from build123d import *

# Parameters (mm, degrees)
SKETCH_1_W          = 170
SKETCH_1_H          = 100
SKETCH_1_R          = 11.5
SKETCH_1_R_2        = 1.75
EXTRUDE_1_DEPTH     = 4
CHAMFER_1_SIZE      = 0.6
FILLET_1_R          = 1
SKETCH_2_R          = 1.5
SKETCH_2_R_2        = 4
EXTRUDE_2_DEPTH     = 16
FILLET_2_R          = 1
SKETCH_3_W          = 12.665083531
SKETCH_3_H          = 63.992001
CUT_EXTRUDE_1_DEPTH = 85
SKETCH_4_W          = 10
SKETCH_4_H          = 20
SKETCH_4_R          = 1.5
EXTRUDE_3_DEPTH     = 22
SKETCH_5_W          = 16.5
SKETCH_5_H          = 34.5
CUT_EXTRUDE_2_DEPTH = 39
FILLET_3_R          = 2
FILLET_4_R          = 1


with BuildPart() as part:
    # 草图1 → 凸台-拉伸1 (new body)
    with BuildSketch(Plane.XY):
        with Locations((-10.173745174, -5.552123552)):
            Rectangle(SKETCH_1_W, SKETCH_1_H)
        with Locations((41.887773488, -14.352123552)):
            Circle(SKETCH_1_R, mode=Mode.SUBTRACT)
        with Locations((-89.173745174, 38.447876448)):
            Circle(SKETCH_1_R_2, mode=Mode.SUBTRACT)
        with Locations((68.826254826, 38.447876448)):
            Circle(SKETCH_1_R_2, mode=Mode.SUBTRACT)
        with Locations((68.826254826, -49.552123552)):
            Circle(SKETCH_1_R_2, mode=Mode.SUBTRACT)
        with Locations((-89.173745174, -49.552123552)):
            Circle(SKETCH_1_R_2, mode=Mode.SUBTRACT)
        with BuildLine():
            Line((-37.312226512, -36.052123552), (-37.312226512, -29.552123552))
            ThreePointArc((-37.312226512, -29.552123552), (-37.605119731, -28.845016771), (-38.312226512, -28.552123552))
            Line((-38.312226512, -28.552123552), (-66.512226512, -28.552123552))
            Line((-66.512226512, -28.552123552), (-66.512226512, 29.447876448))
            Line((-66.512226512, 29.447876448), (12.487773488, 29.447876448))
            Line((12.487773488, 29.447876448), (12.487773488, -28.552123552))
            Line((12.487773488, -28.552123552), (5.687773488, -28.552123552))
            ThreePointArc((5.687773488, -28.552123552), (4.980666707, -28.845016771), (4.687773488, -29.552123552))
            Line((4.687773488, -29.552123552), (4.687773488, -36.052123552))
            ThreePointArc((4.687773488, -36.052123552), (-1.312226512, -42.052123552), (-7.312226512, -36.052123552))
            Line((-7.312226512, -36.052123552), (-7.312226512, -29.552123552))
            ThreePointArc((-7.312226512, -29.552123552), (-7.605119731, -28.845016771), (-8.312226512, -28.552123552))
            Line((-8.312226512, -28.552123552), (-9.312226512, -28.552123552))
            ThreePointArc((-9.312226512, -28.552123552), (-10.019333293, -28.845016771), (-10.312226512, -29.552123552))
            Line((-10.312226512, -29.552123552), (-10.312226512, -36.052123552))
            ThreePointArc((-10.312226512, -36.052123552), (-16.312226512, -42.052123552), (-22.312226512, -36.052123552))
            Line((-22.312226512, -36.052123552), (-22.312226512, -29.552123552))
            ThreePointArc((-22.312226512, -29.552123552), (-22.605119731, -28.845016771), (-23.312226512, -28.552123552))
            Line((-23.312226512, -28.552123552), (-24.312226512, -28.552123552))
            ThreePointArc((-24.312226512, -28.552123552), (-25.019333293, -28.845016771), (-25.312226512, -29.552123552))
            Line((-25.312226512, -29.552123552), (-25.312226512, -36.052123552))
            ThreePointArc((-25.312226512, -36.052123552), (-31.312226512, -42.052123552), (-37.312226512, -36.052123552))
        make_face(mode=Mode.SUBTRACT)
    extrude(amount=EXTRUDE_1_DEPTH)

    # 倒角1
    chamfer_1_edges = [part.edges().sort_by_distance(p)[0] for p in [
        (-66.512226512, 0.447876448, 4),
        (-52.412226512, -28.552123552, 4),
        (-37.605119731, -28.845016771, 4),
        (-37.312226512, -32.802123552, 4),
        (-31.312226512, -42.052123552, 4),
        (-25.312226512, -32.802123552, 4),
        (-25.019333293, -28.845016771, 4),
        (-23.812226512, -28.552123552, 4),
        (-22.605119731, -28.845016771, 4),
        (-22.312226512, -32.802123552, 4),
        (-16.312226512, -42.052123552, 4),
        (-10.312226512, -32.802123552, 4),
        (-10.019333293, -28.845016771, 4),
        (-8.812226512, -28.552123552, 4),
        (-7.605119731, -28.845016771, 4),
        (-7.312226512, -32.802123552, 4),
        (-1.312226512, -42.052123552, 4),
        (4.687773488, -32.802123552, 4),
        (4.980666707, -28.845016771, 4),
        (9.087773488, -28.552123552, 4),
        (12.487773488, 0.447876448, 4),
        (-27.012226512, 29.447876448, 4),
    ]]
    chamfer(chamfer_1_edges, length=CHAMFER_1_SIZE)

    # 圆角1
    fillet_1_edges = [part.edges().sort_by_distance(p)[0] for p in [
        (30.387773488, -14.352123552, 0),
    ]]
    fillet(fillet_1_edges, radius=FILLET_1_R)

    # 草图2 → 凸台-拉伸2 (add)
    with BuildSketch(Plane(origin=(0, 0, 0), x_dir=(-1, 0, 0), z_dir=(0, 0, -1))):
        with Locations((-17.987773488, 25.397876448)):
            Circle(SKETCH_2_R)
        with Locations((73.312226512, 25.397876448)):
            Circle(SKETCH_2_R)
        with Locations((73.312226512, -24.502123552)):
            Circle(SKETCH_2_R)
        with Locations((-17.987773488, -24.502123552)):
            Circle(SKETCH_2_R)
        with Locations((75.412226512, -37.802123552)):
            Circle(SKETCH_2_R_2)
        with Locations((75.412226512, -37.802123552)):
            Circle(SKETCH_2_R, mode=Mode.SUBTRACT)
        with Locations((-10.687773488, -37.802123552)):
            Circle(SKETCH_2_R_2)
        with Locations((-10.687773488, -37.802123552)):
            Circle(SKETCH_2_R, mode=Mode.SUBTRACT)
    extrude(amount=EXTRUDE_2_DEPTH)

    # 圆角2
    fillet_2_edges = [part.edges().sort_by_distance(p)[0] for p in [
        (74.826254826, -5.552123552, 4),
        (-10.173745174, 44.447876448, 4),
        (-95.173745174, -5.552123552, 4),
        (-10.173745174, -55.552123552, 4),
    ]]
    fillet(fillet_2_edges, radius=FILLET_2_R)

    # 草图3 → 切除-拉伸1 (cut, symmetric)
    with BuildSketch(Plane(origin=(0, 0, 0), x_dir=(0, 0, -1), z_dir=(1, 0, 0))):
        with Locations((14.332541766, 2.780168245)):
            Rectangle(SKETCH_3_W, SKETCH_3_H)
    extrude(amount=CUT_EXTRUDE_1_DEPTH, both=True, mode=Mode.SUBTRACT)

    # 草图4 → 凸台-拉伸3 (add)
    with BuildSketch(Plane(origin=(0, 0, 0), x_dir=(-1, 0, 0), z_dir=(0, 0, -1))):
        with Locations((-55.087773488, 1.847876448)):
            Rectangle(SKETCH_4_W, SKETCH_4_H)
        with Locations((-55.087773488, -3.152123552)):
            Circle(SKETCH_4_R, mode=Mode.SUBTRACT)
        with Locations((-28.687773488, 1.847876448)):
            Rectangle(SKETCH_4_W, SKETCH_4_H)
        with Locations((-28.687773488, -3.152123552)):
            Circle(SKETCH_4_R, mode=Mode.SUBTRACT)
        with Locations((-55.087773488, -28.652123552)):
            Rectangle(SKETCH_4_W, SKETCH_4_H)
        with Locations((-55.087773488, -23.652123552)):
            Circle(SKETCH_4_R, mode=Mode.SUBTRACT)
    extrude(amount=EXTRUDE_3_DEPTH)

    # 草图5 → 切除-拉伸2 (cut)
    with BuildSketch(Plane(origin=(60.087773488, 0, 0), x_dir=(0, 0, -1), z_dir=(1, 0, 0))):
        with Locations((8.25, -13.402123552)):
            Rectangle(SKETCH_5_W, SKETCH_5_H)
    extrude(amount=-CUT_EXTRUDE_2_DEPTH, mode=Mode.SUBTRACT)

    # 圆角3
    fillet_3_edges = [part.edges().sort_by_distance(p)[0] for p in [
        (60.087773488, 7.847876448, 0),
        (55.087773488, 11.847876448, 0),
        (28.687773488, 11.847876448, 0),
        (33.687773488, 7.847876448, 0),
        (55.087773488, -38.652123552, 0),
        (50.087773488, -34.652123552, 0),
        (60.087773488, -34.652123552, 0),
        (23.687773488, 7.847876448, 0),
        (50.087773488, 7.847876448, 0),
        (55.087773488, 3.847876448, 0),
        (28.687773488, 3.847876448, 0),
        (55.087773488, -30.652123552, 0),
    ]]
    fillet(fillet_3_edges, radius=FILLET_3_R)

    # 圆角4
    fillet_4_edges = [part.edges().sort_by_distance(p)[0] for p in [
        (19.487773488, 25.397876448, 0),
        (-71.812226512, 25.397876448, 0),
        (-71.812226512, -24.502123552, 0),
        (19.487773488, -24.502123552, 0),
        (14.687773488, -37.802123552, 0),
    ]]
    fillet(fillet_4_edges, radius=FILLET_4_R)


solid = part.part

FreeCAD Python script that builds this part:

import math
import FreeCAD as App
import Part
import Sketcher

V = App.Vector


def edges_at(feature, points):
    """Names of the edges that pass closest to the given points."""
    edges = feature.Shape.Edges
    near = lambda p: min(range(len(edges)), key=lambda i: edges[i].distToShape(Part.Vertex(*p))[0])
    return sorted({f"Edge{near(p) + 1}" for p in points})


def add_polygon(sketch, points):
    """Adds a closed chain of lines whose ends are joined by coincident constraints."""
    first, n = sketch.GeometryCount, len(points)
    for a, b in zip(points, points[1:] + points[:1]):
        sketch.addGeometry(Part.LineSegment(App.Vector(*a, 0), App.Vector(*b, 0)), False)
    for i in range(n):
        sketch.addConstraint(Sketcher.Constraint("Coincident", first + i, 2, first + (i + 1) % n, 1))

doc = App.newDocument("Part")
body = doc.addObject("PartDesign::Body", "Body")

# Sketch on XY plane
sketch1 = body.newObject("Sketcher::SketchObject", "Sketch")
sketch1.AttachmentSupport = (doc.getObject("XY_Plane"), [""])
sketch1.MapMode = "FlatFace"
add_polygon(sketch1, [(-95.173745, 44.447876), (-95.173745, -55.552124), (74.826255, -55.552124), (74.826255, 44.447876)])  # lines 0-3
sketch1.addGeometry(Part.Circle(V(-89.173745, -49.552124, 0), V(0, 0, 1), 1.75), False)  # 4
sketch1.addGeometry(Part.ArcOfCircle(Part.Circle(V(-31.312227, -36.052124, 0), V(0, 0, 1), 6), math.radians(180), math.radians(360)), False)  # 5
sketch1.addGeometry(Part.LineSegment(V(-37.312227, -36.052124, 0), V(-37.312227, -29.552124, 0)), False)  # 6
sketch1.addGeometry(Part.ArcOfCircle(Part.Circle(V(-38.312227, -29.552124, 0), V(0, 0, 1), 1), math.radians(0), math.radians(90)), False)  # 7
sketch1.addGeometry(Part.LineSegment(V(-38.312227, -28.552124, 0), V(-66.512227, -28.552124, 0)), False)  # 8
sketch1.addGeometry(Part.LineSegment(V(-66.512227, -28.552124, 0), V(-66.512227, 29.447876, 0)), False)  # 9
sketch1.addGeometry(Part.LineSegment(V(-66.512227, 29.447876, 0), V(12.487773, 29.447876, 0)), False)  # 10
sketch1.addGeometry(Part.LineSegment(V(12.487773, 29.447876, 0), V(12.487773, -28.552124, 0)), False)  # 11
sketch1.addGeometry(Part.LineSegment(V(12.487773, -28.552124, 0), V(5.687773, -28.552124, 0)), False)  # 12
sketch1.addGeometry(Part.ArcOfCircle(Part.Circle(V(5.687773, -29.552124, 0), V(0, 0, 1), 1), math.radians(90), math.radians(180)), False)  # 13
sketch1.addGeometry(Part.LineSegment(V(4.687773, -29.552124, 0), V(4.687773, -36.052124, 0)), False)  # 14
sketch1.addGeometry(Part.ArcOfCircle(Part.Circle(V(-1.312227, -36.052124, 0), V(0, 0, 1), 6), math.radians(180), math.radians(360)), False)  # 15
sketch1.addGeometry(Part.LineSegment(V(-7.312227, -36.052124, 0), V(-7.312227, -29.552124, 0)), False)  # 16
sketch1.addGeometry(Part.ArcOfCircle(Part.Circle(V(-8.312227, -29.552124, 0), V(0, 0, 1), 1), math.radians(0), math.radians(90)), False)  # 17
sketch1.addGeometry(Part.LineSegment(V(-8.312227, -28.552124, 0), V(-9.312227, -28.552124, 0)), False)  # 18
sketch1.addGeometry(Part.ArcOfCircle(Part.Circle(V(-9.312227, -29.552124, 0), V(0, 0, 1), 1), math.radians(90), math.radians(180)), False)  # 19
sketch1.addGeometry(Part.LineSegment(V(-10.312227, -29.552124, 0), V(-10.312227, -36.052124, 0)), False)  # 20
sketch1.addGeometry(Part.ArcOfCircle(Part.Circle(V(-16.312227, -36.052124, 0), V(0, 0, 1), 6), math.radians(180), math.radians(360)), False)  # 21
sketch1.addGeometry(Part.LineSegment(V(-22.312227, -36.052124, 0), V(-22.312227, -29.552124, 0)), False)  # 22
sketch1.addGeometry(Part.ArcOfCircle(Part.Circle(V(-23.312227, -29.552124, 0), V(0, 0, 1), 1), math.radians(0), math.radians(90)), False)  # 23
sketch1.addGeometry(Part.LineSegment(V(-23.312227, -28.552124, 0), V(-24.312227, -28.552124, 0)), False)  # 24
sketch1.addGeometry(Part.ArcOfCircle(Part.Circle(V(-24.312227, -29.552124, 0), V(0, 0, 1), 1), math.radians(90), math.radians(180)), False)  # 25
sketch1.addGeometry(Part.LineSegment(V(-25.312227, -29.552124, 0), V(-25.312227, -36.052124, 0)), False)  # 26
sketch1.addGeometry(Part.Circle(V(68.826255, -49.552124, 0), V(0, 0, 1), 1.75), False)  # 27
sketch1.addGeometry(Part.Circle(V(41.887773, -14.352124, 0), V(0, 0, 1), 11.5), False)  # 28
sketch1.addGeometry(Part.Circle(V(-89.173745, 38.447876, 0), V(0, 0, 1), 1.75), False)  # 29
sketch1.addGeometry(Part.Circle(V(68.826255, 38.447876, 0), V(0, 0, 1), 1.75), False)  # 30
sketch1.addConstraint([
    Sketcher.Constraint("Tangent", 5, 1, 6, 1),
    Sketcher.Constraint("Tangent", 6, 2, 7, 1),
    Sketcher.Constraint("Tangent", 7, 2, 8, 1),
    Sketcher.Constraint("Coincident", 8, 2, 9, 1),
    Sketcher.Constraint("Coincident", 9, 2, 10, 1),
    Sketcher.Constraint("Coincident", 10, 2, 11, 1),
    Sketcher.Constraint("Coincident", 11, 2, 12, 1),
    Sketcher.Constraint("Tangent", 12, 2, 13, 1),
    Sketcher.Constraint("Tangent", 13, 2, 14, 1),
    Sketcher.Constraint("Tangent", 14, 2, 15, 2),
    Sketcher.Constraint("Tangent", 15, 1, 16, 1),
    Sketcher.Constraint("Tangent", 16, 2, 17, 1),
    Sketcher.Constraint("Tangent", 17, 2, 18, 1),
    Sketcher.Constraint("Tangent", 18, 2, 19, 1),
    Sketcher.Constraint("Tangent", 19, 2, 20, 1),
    Sketcher.Constraint("Tangent", 20, 2, 21, 2),
    Sketcher.Constraint("Tangent", 21, 1, 22, 1),
    Sketcher.Constraint("Tangent", 22, 2, 23, 1),
    Sketcher.Constraint("Tangent", 23, 2, 24, 1),
    Sketcher.Constraint("Tangent", 24, 2, 25, 1),
    Sketcher.Constraint("Tangent", 25, 2, 26, 1),
    Sketcher.Constraint("Tangent", 26, 2, 5, 2),
    Sketcher.Constraint("Vertical", 0),
    Sketcher.Constraint("Horizontal", 1),
    Sketcher.Constraint("Vertical", 2),
    Sketcher.Constraint("Horizontal", 3),
    Sketcher.Constraint("Vertical", 6),
    Sketcher.Constraint("Horizontal", 8),
    Sketcher.Constraint("Vertical", 9),
    Sketcher.Constraint("Horizontal", 10),
    Sketcher.Constraint("Vertical", 11),
    Sketcher.Constraint("Horizontal", 12),
    Sketcher.Constraint("Vertical", 14),
    Sketcher.Constraint("Vertical", 16),
    Sketcher.Constraint("Horizontal", 18),
    Sketcher.Constraint("Vertical", 20),
    Sketcher.Constraint("Vertical", 22),
    Sketcher.Constraint("Horizontal", 24),
    Sketcher.Constraint("Vertical", 26),
    Sketcher.Constraint("Equal", 7, 13),
    Sketcher.Constraint("Equal", 5, 15),
    Sketcher.Constraint("Equal", 13, 17),
    Sketcher.Constraint("Equal", 17, 19),
    Sketcher.Constraint("Equal", 15, 21),
    Sketcher.Constraint("Equal", 19, 23),
    Sketcher.Constraint("Equal", 23, 25),
    Sketcher.Constraint("Equal", 4, 27),
    Sketcher.Constraint("Equal", 27, 29),
    Sketcher.Constraint("Equal", 29, 30),
    Sketcher.Constraint("Horizontal", 7, 3, 13, 3),
    Sketcher.Constraint("Horizontal", 5, 3, 15, 3),
    Sketcher.Constraint("Horizontal", 13, 3, 17, 3),
    Sketcher.Constraint("Horizontal", 15, 3, 21, 3),
    Sketcher.Constraint("Horizontal", 19, 3, 23, 3),
    Sketcher.Constraint("Horizontal", 4, 3, 27, 3),
    Sketcher.Constraint("Horizontal", 29, 3, 30, 3),
    Sketcher.Constraint("Vertical", 4, 3, 29, 3),
    Sketcher.Constraint("Vertical", 27, 3, 30, 3),
    Sketcher.Constraint("Equal", 18, 24),
    Sketcher.Constraint("Diameter", 28, 23.0),
    Sketcher.Constraint("Radius", 5, 6.0),
    Sketcher.Constraint("Radius", 7, 1.0),
    Sketcher.Constraint("Diameter", 4, 3.5),
    Sketcher.Constraint("DistanceX", 1, 1, 1, 2, 170.0),
    Sketcher.Constraint("DistanceX", 10, 1, 10, 2, 79.0),
    Sketcher.Constraint("DistanceX", 18, 2, 18, 1, 1.0),
    Sketcher.Constraint("DistanceY", 0, 2, 0, 1, 100.0),
    Sketcher.Constraint("DistanceY", 9, 1, 9, 2, 58.0),
    Sketcher.Constraint("DistanceX", 8, 2, 8, 1, 28.2),
    Sketcher.Constraint("DistanceY", 6, 1, 6, 2, 6.5),
    Sketcher.Constraint("DistanceY", 4, 3, 7, 3, 20.0),
    Sketcher.Constraint("DistanceY", 7, 3, 29, 3, 68.0),
    Sketcher.Constraint("DistanceX", 0, 2, 4, 3, 6.0),
    Sketcher.Constraint("DistanceY", 0, 2, 4, 3, 6.0),
    Sketcher.Constraint("DistanceX", 27, 3, 1, 2, 6.0),
    Sketcher.Constraint("DistanceX", 13, 3, 28, 3, 36.2),
    Sketcher.Constraint("DistanceY", 13, 3, 28, 3, 15.2),
    Sketcher.Constraint("DistanceX", 4, 3, 5, 3, 57.861519),
    Sketcher.Constraint("DistanceX", 4, 3, -1, 1, 89.173745),
    Sketcher.Constraint("DistanceY", 4, 3, -1, 1, 49.552124),
])
pad1 = body.newObject("PartDesign::Pad", "Pad")
pad1.Profile = sketch1
pad1.Length = 4
doc.recompute()

chamfer = body.newObject("PartDesign::Chamfer", "Chamfer")
chamfer.Base = (pad1, edges_at(pad1, [
    (-66.512, 0.448, 4),
    (-52.412, -28.552, 4),
    (-37.605, -28.845, 4),
    (-37.312, -32.802, 4),
    (-31.312, -42.052, 4),
    (-25.312, -32.802, 4),
    (-25.019, -28.845, 4),
    (-23.812, -28.552, 4),
    (-22.605, -28.845, 4),
    (-22.312, -32.802, 4),
    (-16.312, -42.052, 4),
    (-10.312, -32.802, 4),
    (-10.019, -28.845, 4),
    (-8.812, -28.552, 4),
    (-7.605, -28.845, 4),
    (-7.312, -32.802, 4),
    (-1.312, -42.052, 4),
    (4.688, -32.802, 4),
    (4.981, -28.845, 4),
    (9.088, -28.552, 4),
    (12.488, 0.448, 4),
    (-27.012, 29.448, 4),
]))
chamfer.Size = 0.6
doc.recompute()

fillet = body.newObject("PartDesign::Fillet", "Fillet")
fillet.Base = (chamfer, edges_at(chamfer, [(30.388, -14.352, 0)]))
fillet.Radius = 1

# Sketch on XY plane
sketch2 = body.newObject("Sketcher::SketchObject", "Sketch001")
sketch2.AttachmentSupport = (doc.getObject("XY_Plane"), [""])
sketch2.MapMode = "FlatFace"
sketch2.addGeometry([
    Part.Circle(V(17.987773, 25.397876, 0), V(0, 0, 1), 1.5),  # 0
    Part.Circle(V(-73.312227, 25.397876, 0), V(0, 0, 1), 1.5),  # 1
    Part.Circle(V(-73.312227, -24.502124, 0), V(0, 0, 1), 1.5),  # 2
    Part.Circle(V(17.987773, -24.502124, 0), V(0, 0, 1), 1.5),  # 3
    Part.Circle(V(-75.412227, -37.802124, 0), V(0, 0, 1), 4),  # 4
    Part.Circle(V(-75.412227, -37.802124, 0), V(0, 0, 1), 1.5),  # 5
    Part.Circle(V(10.687773, -37.802124, 0), V(0, 0, 1), 4),  # 6
    Part.Circle(V(10.687773, -37.802124, 0), V(0, 0, 1), 1.5),  # 7
], False)
sketch2.addConstraint([
    Sketcher.Constraint("Coincident", 5, 3, 4, 3),
    Sketcher.Constraint("Coincident", 7, 3, 6, 3),
    Sketcher.Constraint("Equal", 0, 1),
    Sketcher.Constraint("Equal", 1, 2),
    Sketcher.Constraint("Equal", 2, 3),
    Sketcher.Constraint("Equal", 3, 5),
    Sketcher.Constraint("Equal", 4, 6),
    Sketcher.Constraint("Equal", 5, 7),
    Sketcher.Constraint("Horizontal", 0, 3, 1, 3),
    Sketcher.Constraint("Horizontal", 2, 3, 3, 3),
    Sketcher.Constraint("Horizontal", 5, 3, 6, 3),
    Sketcher.Constraint("Vertical", 1, 3, 2, 3),
    Sketcher.Constraint("Vertical", 0, 3, 3, 3),
    Sketcher.Constraint("Diameter", 0, 3.0),
    Sketcher.Constraint("Diameter", 4, 8.0),
    Sketcher.Constraint("DistanceX", 2, 3, 6, 3, 84.0),
    Sketcher.Constraint("DistanceX", 1, 3, 0, 3, 91.3),
    Sketcher.Constraint("DistanceY", 2, 3, 1, 3, 49.9),
    Sketcher.Constraint("DistanceX", 4, 3, 2, 3, 2.1),
    Sketcher.Constraint("DistanceY", 4, 3, 2, 3, 13.3),
    Sketcher.Constraint("DistanceX", -1, 1, 0, 3, 17.987773),
    Sketcher.Constraint("DistanceY", -1, 1, 0, 3, 25.397876),
])
pad2 = body.newObject("PartDesign::Pad", "Pad001")
pad2.Profile = sketch2
pad2.Length = 16
pad2.Reversed = True
doc.recompute()

fillet2 = body.newObject("PartDesign::Fillet", "Fillet001")
fillet2.Base = (pad2, edges_at(pad2, [
    (74.826, -5.552, 4),
    (-10.174, 44.448, 4),
    (-95.174, -5.552, 4),
    (-10.174, -55.552, 4),
]))
fillet2.Radius = 1

# Sketch on YZ plane
sketch3 = body.newObject("Sketcher::SketchObject", "Sketch002")
sketch3.AttachmentSupport = (doc.getObject("YZ_Plane"), [""])
sketch3.MapMode = "FlatFace"
add_polygon(sketch3, [(34.776169, -8), (-29.215832, -8), (-29.215832, -20.665084), (34.776169, -20.665084)])  # lines 0-3
sketch3.addConstraint([
    Sketcher.Constraint("Horizontal", 0),
    Sketcher.Constraint("Vertical", 1),
    Sketcher.Constraint("Horizontal", 2),
    Sketcher.Constraint("Vertical", 3),
    Sketcher.Constraint("DistanceY", 0, 2, -1, 1, 8.0),
    Sketcher.Constraint("DistanceX", 0, 2, 0, 1, 63.992001),
    Sketcher.Constraint("DistanceY", 1, 2, 1, 1, 12.665084),
    Sketcher.Constraint("DistanceX", -1, 1, 2, 2, 34.776169),
])
pocket1 = body.newObject("PartDesign::Pocket", "Pocket")
pocket1.Profile = sketch3
pocket1.Length = 170
pocket1.Midplane = True

# Sketch on XY plane
sketch4 = body.newObject("Sketcher::SketchObject", "Sketch003")
sketch4.AttachmentSupport = (doc.getObject("XY_Plane"), [""])
sketch4.MapMode = "FlatFace"
add_polygon(sketch4, [(60.087773, 11.847876), (60.087773, -8.152124), (50.087773, -8.152124), (50.087773, 11.847876)])  # lines 0-3
sketch4.addGeometry(Part.Circle(V(55.087773, -3.152124, 0), V(0, 0, 1), 1.5), False)  # 4
add_polygon(sketch4, [(33.687773, 11.847876), (33.687773, -8.152124), (23.687773, -8.152124), (23.687773, 11.847876)])  # lines 5-8
sketch4.addGeometry(Part.Circle(V(28.687773, -3.152124, 0), V(0, 0, 1), 1.5), False)  # 9
add_polygon(sketch4, [(60.087773, -18.652124), (60.087773, -38.652124), (50.087773, -38.652124), (50.087773, -18.652124)])  # lines 10-13
sketch4.addGeometry(Part.Circle(V(55.087773, -23.652124, 0), V(0, 0, 1), 1.5), False)  # 14
sketch4.addConstraint([
    Sketcher.Constraint("Vertical", 0),
    Sketcher.Constraint("Horizontal", 1),
    Sketcher.Constraint("Vertical", 2),
    Sketcher.Constraint("Horizontal", 3),
    Sketcher.Constraint("Vertical", 5),
    Sketcher.Constraint("Horizontal", 6),
    Sketcher.Constraint("Vertical", 7),
    Sketcher.Constraint("Horizontal", 8),
    Sketcher.Constraint("Vertical", 10),
    Sketcher.Constraint("Horizontal", 11),
    Sketcher.Constraint("Vertical", 12),
    Sketcher.Constraint("Horizontal", 13),
    Sketcher.Constraint("Equal", 4, 9),
    Sketcher.Constraint("Equal", 9, 14),
    Sketcher.Constraint("Horizontal", 4, 3, 9, 3),
    Sketcher.Constraint("Horizontal", 1, 2, 5, 2),
    Sketcher.Constraint("Horizontal", 3, 2, 7, 2),
    Sketcher.Constraint("Vertical", 4, 3, 14, 3),
    Sketcher.Constraint("Vertical", 3, 2, 10, 2),
    Sketcher.Constraint("Vertical", 2, 2, 11, 2),
    Sketcher.Constraint("Equal", 3, 6),
    Sketcher.Constraint("Equal", 7, 10),
    Sketcher.Constraint("Diameter", 4, 3.0),
    Sketcher.Constraint("DistanceX", 1, 2, 1, 1, 10.0),
    Sketcher.Constraint("DistanceY", 0, 2, 0, 1, 20.0),
    Sketcher.Constraint("DistanceX", 4, 3, 0, 2, 5.0),
    Sketcher.Constraint("DistanceY", 0, 2, 4, 3, 5.0),
    Sketcher.Constraint("DistanceX", 9, 3, 5, 2, 5.0),
    Sketcher.Constraint("DistanceY", 10, 2, 14, 3, 15.0),
    Sketcher.Constraint("DistanceX", 9, 3, 4, 3, 26.4),
    Sketcher.Constraint("DistanceY", 14, 3, 4, 3, 20.5),
    Sketcher.Constraint("DistanceX", -1, 1, 4, 3, 55.087773),
    Sketcher.Constraint("DistanceY", 4, 3, -1, 1, 3.152124),
])
pad3 = body.newObject("PartDesign::Pad", "Pad002")
pad3.Profile = sketch4
pad3.Length = 22
pad3.Reversed = True

# Sketch on YZ plane
sketch5 = body.newObject("Sketcher::SketchObject", "Sketch004")
sketch5.AttachmentSupport = (doc.getObject("YZ_Plane"), [""])
sketch5.MapMode = "FlatFace"
sketch5.AttachmentOffset = App.Placement(V(0, 0, 60.087773), App.Rotation())
add_polygon(sketch5, [(3.847876, 0), (-30.652124, 0), (-30.652124, -16.5), (3.847876, -16.5)])  # lines 0-3
sketch5.addConstraint([
    Sketcher.Constraint("Horizontal", 0),
    Sketcher.Constraint("Vertical", 1),
    Sketcher.Constraint("Horizontal", 2),
    Sketcher.Constraint("Vertical", 3),
    Sketcher.Constraint("PointOnObject", 0, 2, -1),
    Sketcher.Constraint("DistanceX", 0, 2, 0, 1, 34.5),
    Sketcher.Constraint("DistanceY", 1, 2, 1, 1, 16.5),
    Sketcher.Constraint("DistanceX", 0, 2, -1, 1, 30.652124),
])
pocket2 = body.newObject("PartDesign::Pocket", "Pocket001")
pocket2.Profile = sketch5
pocket2.Length = 39
doc.recompute()

fillet3 = body.newObject("PartDesign::Fillet", "Fillet002")
fillet3.Base = (pocket2, edges_at(pocket2, [
    (60.088, 7.848, 0),
    (55.088, 11.848, 0),
    (28.688, 11.848, 0),
    (33.688, 7.848, 0),
    (55.088, -38.652, 0),
    (50.088, -34.652, 0),
    (60.088, -34.652, 0),
    (23.688, 7.848, 0),
    (50.088, 7.848, 0),
    (55.088, 3.848, 0),
    (28.688, 3.848, 0),
    (55.088, -30.652, 0),
]))
fillet3.Radius = 2
doc.recompute()

fillet4 = body.newObject("PartDesign::Fillet", "Fillet003")
fillet4.Base = (fillet3, edges_at(fillet3, [
    (19.488, 25.398, 0),
    (-71.812, 25.398, 0),
    (-71.812, -24.502, 0),
    (19.488, -24.502, 0),
    (14.688, -37.802, 0),
]))
fillet4.Radius = 1

doc.recompute()
